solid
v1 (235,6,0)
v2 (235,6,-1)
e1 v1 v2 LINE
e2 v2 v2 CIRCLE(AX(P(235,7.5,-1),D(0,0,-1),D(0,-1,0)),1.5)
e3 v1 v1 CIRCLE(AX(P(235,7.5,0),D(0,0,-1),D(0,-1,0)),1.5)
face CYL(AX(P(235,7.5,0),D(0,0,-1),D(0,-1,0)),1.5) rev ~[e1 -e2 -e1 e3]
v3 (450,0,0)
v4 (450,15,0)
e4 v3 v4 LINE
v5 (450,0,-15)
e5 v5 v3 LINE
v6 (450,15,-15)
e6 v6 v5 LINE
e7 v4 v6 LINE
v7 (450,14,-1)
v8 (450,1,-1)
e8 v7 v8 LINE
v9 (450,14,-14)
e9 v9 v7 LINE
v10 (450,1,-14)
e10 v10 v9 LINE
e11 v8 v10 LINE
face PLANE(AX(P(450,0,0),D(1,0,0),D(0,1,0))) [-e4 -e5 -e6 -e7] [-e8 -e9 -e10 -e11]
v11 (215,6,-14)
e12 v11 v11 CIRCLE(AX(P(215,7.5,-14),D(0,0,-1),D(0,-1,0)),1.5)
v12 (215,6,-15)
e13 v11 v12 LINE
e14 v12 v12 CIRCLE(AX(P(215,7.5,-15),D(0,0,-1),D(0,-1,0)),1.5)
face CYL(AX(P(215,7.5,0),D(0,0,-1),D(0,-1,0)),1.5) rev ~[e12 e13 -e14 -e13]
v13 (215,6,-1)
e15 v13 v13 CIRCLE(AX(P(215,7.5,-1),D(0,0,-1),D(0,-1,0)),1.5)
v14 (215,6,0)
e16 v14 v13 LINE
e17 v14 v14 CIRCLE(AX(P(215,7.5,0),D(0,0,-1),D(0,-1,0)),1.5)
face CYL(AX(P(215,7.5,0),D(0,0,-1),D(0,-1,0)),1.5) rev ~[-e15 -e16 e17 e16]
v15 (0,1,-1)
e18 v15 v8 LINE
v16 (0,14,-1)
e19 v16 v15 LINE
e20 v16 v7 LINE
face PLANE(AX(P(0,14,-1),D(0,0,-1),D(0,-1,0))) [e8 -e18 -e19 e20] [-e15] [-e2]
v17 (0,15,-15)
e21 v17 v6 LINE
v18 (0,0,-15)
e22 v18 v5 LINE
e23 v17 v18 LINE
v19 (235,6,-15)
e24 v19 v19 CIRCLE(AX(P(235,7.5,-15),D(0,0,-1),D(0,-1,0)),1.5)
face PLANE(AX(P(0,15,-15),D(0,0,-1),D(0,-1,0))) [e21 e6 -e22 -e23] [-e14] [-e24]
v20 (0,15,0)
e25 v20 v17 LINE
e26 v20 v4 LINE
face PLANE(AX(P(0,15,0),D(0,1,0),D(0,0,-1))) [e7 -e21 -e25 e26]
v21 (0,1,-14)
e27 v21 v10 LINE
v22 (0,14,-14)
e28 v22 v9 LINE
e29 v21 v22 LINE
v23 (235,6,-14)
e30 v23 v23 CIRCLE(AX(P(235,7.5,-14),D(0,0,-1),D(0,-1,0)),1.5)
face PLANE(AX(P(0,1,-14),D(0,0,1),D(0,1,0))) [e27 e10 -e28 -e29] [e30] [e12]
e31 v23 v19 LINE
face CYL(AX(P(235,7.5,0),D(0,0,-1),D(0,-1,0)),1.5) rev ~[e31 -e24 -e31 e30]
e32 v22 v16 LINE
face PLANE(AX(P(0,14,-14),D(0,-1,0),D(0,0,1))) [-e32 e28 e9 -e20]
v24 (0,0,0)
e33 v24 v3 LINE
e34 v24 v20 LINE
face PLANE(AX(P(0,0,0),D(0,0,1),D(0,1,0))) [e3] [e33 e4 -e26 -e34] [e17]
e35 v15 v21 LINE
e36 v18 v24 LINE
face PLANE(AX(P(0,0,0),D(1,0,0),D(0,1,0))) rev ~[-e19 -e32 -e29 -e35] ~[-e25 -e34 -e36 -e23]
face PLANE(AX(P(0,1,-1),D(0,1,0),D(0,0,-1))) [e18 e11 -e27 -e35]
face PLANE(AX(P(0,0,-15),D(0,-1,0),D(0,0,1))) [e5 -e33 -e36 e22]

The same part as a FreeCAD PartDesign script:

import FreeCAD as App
import Part
import Sketcher
from FreeCAD import Vector


def add_polygon(sketch, points):
    """Adds a closed chain of lines whose ends are joined by coincident constraints."""
    first, n = sketch.GeometryCount, len(points)
    for a, b in zip(points, points[1:] + points[:1]):
        sketch.addGeometry(Part.LineSegment(App.Vector(*a, 0), App.Vector(*b, 0)), False)
    for i in range(n):
        sketch.addConstraint(Sketcher.Constraint("Coincident", first + i, 2, first + (i + 1) % n, 1))

doc = App.newDocument("Part")
body = doc.addObject("PartDesign::Body", "Body")

# Sketch on YZ plane
sketch1 = body.newObject("Sketcher::SketchObject", "Sketch")
sketch1.AttachmentSupport = (doc.getObject("YZ_Plane"), [""])
sketch1.MapMode = "FlatFace"
add_polygon(sketch1, [(15, 0), (0, 0), (0, -15), (15, -15)])  # lines 0-3
add_polygon(sketch1, [(1, -1), (14, -1), (14, -14), (1, -14)])  # lines 4-7
sketch1.addConstraint(Sketcher.Constraint("Horizontal", 0))
sketch1.addConstraint(Sketcher.Constraint("Vertical", 1))
sketch1.addConstraint(Sketcher.Constraint("Horizontal", 2))
sketch1.addConstraint(Sketcher.Constraint("Vertical", 3))
sketch1.addConstraint(Sketcher.Constraint("Horizontal", 4))
sketch1.addConstraint(Sketcher.Constraint("Vertical", 5))
sketch1.addConstraint(Sketcher.Constraint("Horizontal", 6))
sketch1.addConstraint(Sketcher.Constraint("Vertical", 7))
sketch1.addConstraint(Sketcher.Constraint("Coincident", 0, 2, -1, 1))
sketch1.addConstraint(Sketcher.Constraint("Equal", 2, 1))
sketch1.addConstraint(Sketcher.Constraint("Equal", 6, 5))
sketch1.addConstraint(Sketcher.Constraint("DistanceX", 0, 2, 0, 1, 15.0))
sketch1.addConstraint(Sketcher.Constraint("DistanceY", 4, 2, -1, 1, 1.0))
sketch1.addConstraint(Sketcher.Constraint("DistanceX", -1, 1, 6, 2, 1.0))
sketch1.addConstraint(Sketcher.Constraint("DistanceX", 4, 2, 3, 2, 1.0))
pad1 = body.newObject("PartDesign::Pad", "Pad")
pad1.Profile = sketch1
pad1.Length = 450

# Sketch on XY plane
sketch2 = body.newObject("Sketcher::SketchObject", "Sketch001")
sketch2.AttachmentSupport = (doc.getObject("XY_Plane"), [""])
sketch2.MapMode = "FlatFace"
sketch2.addGeometry(Part.Circle(Vector(215, 7.5, 0), Vector(0, 0, 1), 1.5), False)
sketch2.addGeometry(Part.Circle(Vector(235, 7.5, 0), Vector(0, 0, 1), 1.5), False)
sketch2.addConstraint(Sketcher.Constraint("Equal", 0, 1))
sketch2.addConstraint(Sketcher.Constraint("Horizontal", 0, 3, 1, 3))
sketch2.addConstraint(Sketcher.Constraint("Diameter", 0, 3.0))
sketch2.addConstraint(Sketcher.Constraint("DistanceX", -1, 1, 0, 3, 215.0))
sketch2.addConstraint(Sketcher.Constraint("DistanceX", -1, 1, 1, 3, 235.0))
sketch2.addConstraint(Sketcher.Constraint("DistanceY", -1, 1, 0, 3, 7.5))
doc.recompute()
hole = body.newObject("PartDesign::Hole", "Hole")
hole.Profile = sketch2
hole.ThreadType = "None"
hole.Diameter = 3
hole.DepthType = "ThroughAll"

doc.recompute()
